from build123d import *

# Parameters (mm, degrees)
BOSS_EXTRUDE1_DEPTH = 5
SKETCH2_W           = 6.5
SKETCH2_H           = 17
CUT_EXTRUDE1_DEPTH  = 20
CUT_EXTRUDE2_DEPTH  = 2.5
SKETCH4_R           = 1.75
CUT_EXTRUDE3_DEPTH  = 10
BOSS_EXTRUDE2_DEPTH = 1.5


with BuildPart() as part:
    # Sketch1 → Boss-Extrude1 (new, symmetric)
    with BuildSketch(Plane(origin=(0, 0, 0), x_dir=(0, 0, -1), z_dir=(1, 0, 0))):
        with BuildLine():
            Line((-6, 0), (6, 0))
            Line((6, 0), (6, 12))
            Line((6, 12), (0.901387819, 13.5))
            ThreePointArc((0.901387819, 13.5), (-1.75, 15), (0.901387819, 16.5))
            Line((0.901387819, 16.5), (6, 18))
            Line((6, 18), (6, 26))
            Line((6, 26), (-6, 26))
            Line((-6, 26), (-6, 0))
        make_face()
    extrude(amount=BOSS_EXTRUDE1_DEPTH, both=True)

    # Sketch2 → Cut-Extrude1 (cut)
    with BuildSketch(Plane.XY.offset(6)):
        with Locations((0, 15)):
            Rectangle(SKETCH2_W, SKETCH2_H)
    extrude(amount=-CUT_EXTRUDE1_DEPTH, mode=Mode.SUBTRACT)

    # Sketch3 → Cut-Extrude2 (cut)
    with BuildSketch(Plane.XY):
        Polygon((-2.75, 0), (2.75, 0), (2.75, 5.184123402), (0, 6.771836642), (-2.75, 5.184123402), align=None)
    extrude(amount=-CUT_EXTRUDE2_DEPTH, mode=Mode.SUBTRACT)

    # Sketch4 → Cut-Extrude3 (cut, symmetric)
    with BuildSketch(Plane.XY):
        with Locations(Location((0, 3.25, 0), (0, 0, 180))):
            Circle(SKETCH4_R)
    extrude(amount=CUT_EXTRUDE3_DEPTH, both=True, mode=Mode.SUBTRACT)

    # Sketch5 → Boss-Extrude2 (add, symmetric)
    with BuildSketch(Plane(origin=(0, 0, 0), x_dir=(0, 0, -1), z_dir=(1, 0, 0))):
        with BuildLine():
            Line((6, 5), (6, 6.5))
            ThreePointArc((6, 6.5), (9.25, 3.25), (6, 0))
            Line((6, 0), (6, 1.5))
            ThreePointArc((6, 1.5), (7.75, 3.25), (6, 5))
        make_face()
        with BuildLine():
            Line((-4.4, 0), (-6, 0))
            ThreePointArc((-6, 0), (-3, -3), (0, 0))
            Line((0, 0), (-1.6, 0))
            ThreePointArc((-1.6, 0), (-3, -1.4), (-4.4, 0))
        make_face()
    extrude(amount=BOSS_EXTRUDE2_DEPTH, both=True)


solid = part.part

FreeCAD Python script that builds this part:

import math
import FreeCAD as App
import Part
import Sketcher

V = App.Vector
Q = App.Units.Quantity


def add_polygon(sketch, points):
    """Adds a closed chain of lines whose ends are joined by coincident constraints."""
    first, n = sketch.GeometryCount, len(points)
    for a, b in zip(points, points[1:] + points[:1]):
        sketch.addGeometry(Part.LineSegment(App.Vector(*a, 0), App.Vector(*b, 0)), False)
    for i in range(n):
        sketch.addConstraint(Sketcher.Constraint("Coincident", first + i, 2, first + (i + 1) % n, 1))

doc = App.newDocument("Part")
body = doc.addObject("PartDesign::Body", "Body")

sketch1 = doc.addObject("Sketcher::SketchObject", "Sketch")
body.addObject(sketch1)
sketch1.AttachmentSupport = (doc.YZ_Plane, [""])
sketch1.MapMode = "FlatFace"
sketch1.addGeometry([
    Part.LineSegment(V(0, 6, 0), V(0, -6, 0)),
    Part.LineSegment(V(0, -6, 0), V(12, -6, 0)),
    Part.LineSegment(V(12, -6, 0), V(13.5, -0.9, 0)),
    Part.ArcOfCircle(Part.Circle(V(15, 0, 0), V(0, 0, 1), 1.8), math.radians(-31), math.radians(211)),
    Part.LineSegment(V(16.5, -0.9, 0), V(18, -6, 0)),
    Part.LineSegment(V(18, -6, 0), V(26, -6, 0)),
    Part.LineSegment(V(26, -6, 0), V(26, 6, 0)),
    Part.LineSegment(V(26, 6, 0), V(0, 6, 0)),
], False)
sketch1.addConstraint([
    Sketcher.Constraint("Coincident", 0, 2, 1, 1),
    Sketcher.Constraint("Coincident", 1, 2, 2, 1),
    Sketcher.Constraint("Coincident", 2, 2, 3, 2),
    Sketcher.Constraint("Coincident", 3, 1, 4, 1),
    Sketcher.Constraint("Coincident", 4, 2, 5, 1),
    Sketcher.Constraint("Coincident", 5, 2, 6, 1),
    Sketcher.Constraint("Coincident", 6, 2, 7, 1),
    Sketcher.Constraint("Coincident", 7, 2, 0, 1),
    Sketcher.Constraint("Vertical", 0),
    Sketcher.Constraint("Horizontal", 1),
    Sketcher.Constraint("Horizontal", 5),
    Sketcher.Constraint("Vertical", 6),
    Sketcher.Constraint("Horizontal", 7),
    Sketcher.Constraint("Symmetric", 0, 2, 7, 2, -1, 1),
    Sketcher.Constraint("PointOnObject", 3, 3, -1),
    Sketcher.Constraint("Horizontal", 2, 2, 3, 1),
    Sketcher.Constraint("Horizontal", 1, 2, 4, 2),
    Sketcher.Constraint("Equal", 1, 0),
    Sketcher.Constraint("Equal", 2, 4),
    Sketcher.Constraint("DistanceX", 1, 1, 1, 2, 12.0),
    Sketcher.Constraint("DistanceX", 5, 1, 5, 2, 8.0),
    Sketcher.Constraint("DistanceX", 7, 2, 7, 1, 26.0),
    Sketcher.Constraint("Radius", 3, 1.75),
    Sketcher.Constraint("DistanceX", 2, 2, 3, 1, 3.0),
])
pad1 = doc.addObject("PartDesign::Pad", "Pad")
body.addObject(pad1)
pad1.Profile = sketch1
pad1.Length = 10
pad1.Midplane = True

sketch2 = doc.addObject("Sketcher::SketchObject", "Sketch001")
body.addObject(sketch2)
sketch2.AttachmentSupport = (doc.XY_Plane, [""])
sketch2.MapMode = "FlatFace"
sketch2.AttachmentOffset = App.Placement(V(0, 0, 6), App.Rotation())
add_polygon(sketch2, [(-3, 24), (-3, 6), (3, 6), (3, 24)])
sketch2.addConstraint([
    Sketcher.Constraint("Vertical", 0),
    Sketcher.Constraint("Horizontal", 1),
    Sketcher.Constraint("Vertical", 2),
    Sketcher.Constraint("Horizontal", 3),
    Sketcher.Constraint("DistanceY", 0, 2, 0, 1, 17.0),
    Sketcher.Constraint("DistanceX", 1, 1, 1, 2, 6.5),
    Sketcher.Constraint("DistanceY", -1, 1, 0, 2, 6.5),
    Sketcher.Constraint("DistanceX", 0, 2, -1, 1, 3.25),
])
pocket1 = doc.addObject("PartDesign::Pocket", "Pocket")
body.addObject(pocket1)
pocket1.Profile = sketch2
pocket1.Length = 20

sketch3 = doc.addObject("Sketcher::SketchObject", "Sketch002")
body.addObject(sketch3)
sketch3.AttachmentSupport = (doc.XY_Plane, [""])
sketch3.MapMode = "FlatFace"
add_polygon(sketch3, [(-2.8, 0), (2.8, 0), (2.8, 5.2), (0, 6.8), (-2.8, 5.2)])
sketch3.addConstraint([
    Sketcher.Constraint("Horizontal", 0),
    Sketcher.Constraint("Vertical", 1),
    Sketcher.Constraint("Vertical", 4),
    Sketcher.Constraint("Symmetric", 0, 2, 4, 2, -1, 1),
    Sketcher.Constraint("PointOnObject", 2, 2, -2),
    Sketcher.Constraint("Horizontal", 1, 2, 3, 2),
    Sketcher.Constraint("Angle", 2, Q("150 deg")),
    Sketcher.Constraint("DistanceX", 0, 1, 0, 2, 5.5),
    Sketcher.Constraint("DistanceY", 1, 1, 1, 2, 5.184123),
])
pocket2 = doc.addObject("PartDesign::Pocket", "Pocket001")
body.addObject(pocket2)
pocket2.Profile = sketch3
pocket2.Length = 2.5

sketch4 = doc.addObject("Sketcher::SketchObject", "Sketch003")
body.addObject(sketch4)
sketch4.AttachmentSupport = (doc.XY_Plane, [""])
sketch4.MapMode = "FlatFace"
sketch4.addGeometry(Part.Circle(V(0, 3.2, 0), V(0, 0, 1), 1.8), False)
sketch4.addConstraint([
    Sketcher.Constraint("PointOnObject", 0, 3, -2),
    Sketcher.Constraint("Diameter", 0, 3.5),
    Sketcher.Constraint("DistanceY", -1, 1, 0, 3, 3.25),
])
pocket3 = doc.addObject("PartDesign::Pocket", "Pocket002")
body.addObject(pocket3)
pocket3.Profile = sketch4
pocket3.Length = 20
pocket3.Midplane = True

sketch5 = doc.addObject("Sketcher::SketchObject", "Sketch004")
body.addObject(sketch5)
sketch5.AttachmentSupport = (doc.YZ_Plane, [""])
sketch5.MapMode = "FlatFace"
sketch5.addGeometry([
    Part.LineSegment(V(6.5, -6, 0), V(5, -6, 0)),
    Part.ArcOfCircle(Part.Circle(V(3.2, -6, 0), V(0, 0, 1), 1.8), math.radians(180), math.radians(360)),
    Part.LineSegment(V(1.5, -6, 0), V(0, -6, 0)),
    Part.ArcOfCircle(Part.Circle(V(3.2, -6, 0), V(0, 0, 1), 3.2), math.radians(180), math.radians(360)),
    Part.LineSegment(V(0, 4.4, 0), V(0, 6, 0)),
    Part.ArcOfCircle(Part.Circle(V(0, 3, 0), V(0, 0, 1), 3), math.radians(90), math.radians(270)),
    Part.LineSegment(V(0, 0, 0), V(0, 1.6, 0)),
    Part.ArcOfCircle(Part.Circle(V(0, 3, 0), V(0, 0, 1), 1.4), math.radians(90), math.radians(270)),
], False)
sketch5.addConstraint([
    Sketcher.Constraint("Coincident", 0, 2, 1, 2),
    Sketcher.Constraint("Coincident", 1, 1, 2, 1),
    Sketcher.Constraint("Coincident", 2, 2, 3, 1),
    Sketcher.Constraint("Coincident", 3, 2, 0, 1),
    Sketcher.Constraint("Coincident", 4, 2, 5, 1),
    Sketcher.Constraint("Coincident", 5, 2, 6, 1),
    Sketcher.Constraint("Coincident", 6, 2, 7, 2),
    Sketcher.Constraint("Coincident", 7, 1, 4, 1),
    Sketcher.Constraint("Horizontal", 0),
    Sketcher.Constraint("Horizontal", 2),
    Sketcher.Constraint("Vertical", 4),
    Sketcher.Constraint("Vertical", 6),
    Sketcher.Constraint("Coincident", 5, 2, -1, 1),
    Sketcher.Constraint("Coincident", 3, 3, 1, 3),
    Sketcher.Constraint("Coincident", 7, 3, 5, 3),
    Sketcher.Constraint("Symmetric", 2, 2, 4, 2, -1, 1),
    Sketcher.Constraint("PointOnObject", 5, 3, -2),
    Sketcher.Constraint("PointOnObject", 2, 2, -2),
    Sketcher.Constraint("Horizontal", 3, 3, 0, 2),
    Sketcher.Constraint("Horizontal", 0, 2, 1, 1),
    Sketcher.Constraint("Radius", 5, 3.0),
    Sketcher.Constraint("Radius", 7, 1.4),
    Sketcher.Constraint("Radius", 1, 1.75),
    Sketcher.Constraint("Radius", 3, 3.25),
])
pad2 = doc.addObject("PartDesign::Pad", "Pad001")
body.addObject(pad2)
pad2.Profile = sketch5
pad2.Length = 3
pad2.Midplane = True

doc.recompute()
